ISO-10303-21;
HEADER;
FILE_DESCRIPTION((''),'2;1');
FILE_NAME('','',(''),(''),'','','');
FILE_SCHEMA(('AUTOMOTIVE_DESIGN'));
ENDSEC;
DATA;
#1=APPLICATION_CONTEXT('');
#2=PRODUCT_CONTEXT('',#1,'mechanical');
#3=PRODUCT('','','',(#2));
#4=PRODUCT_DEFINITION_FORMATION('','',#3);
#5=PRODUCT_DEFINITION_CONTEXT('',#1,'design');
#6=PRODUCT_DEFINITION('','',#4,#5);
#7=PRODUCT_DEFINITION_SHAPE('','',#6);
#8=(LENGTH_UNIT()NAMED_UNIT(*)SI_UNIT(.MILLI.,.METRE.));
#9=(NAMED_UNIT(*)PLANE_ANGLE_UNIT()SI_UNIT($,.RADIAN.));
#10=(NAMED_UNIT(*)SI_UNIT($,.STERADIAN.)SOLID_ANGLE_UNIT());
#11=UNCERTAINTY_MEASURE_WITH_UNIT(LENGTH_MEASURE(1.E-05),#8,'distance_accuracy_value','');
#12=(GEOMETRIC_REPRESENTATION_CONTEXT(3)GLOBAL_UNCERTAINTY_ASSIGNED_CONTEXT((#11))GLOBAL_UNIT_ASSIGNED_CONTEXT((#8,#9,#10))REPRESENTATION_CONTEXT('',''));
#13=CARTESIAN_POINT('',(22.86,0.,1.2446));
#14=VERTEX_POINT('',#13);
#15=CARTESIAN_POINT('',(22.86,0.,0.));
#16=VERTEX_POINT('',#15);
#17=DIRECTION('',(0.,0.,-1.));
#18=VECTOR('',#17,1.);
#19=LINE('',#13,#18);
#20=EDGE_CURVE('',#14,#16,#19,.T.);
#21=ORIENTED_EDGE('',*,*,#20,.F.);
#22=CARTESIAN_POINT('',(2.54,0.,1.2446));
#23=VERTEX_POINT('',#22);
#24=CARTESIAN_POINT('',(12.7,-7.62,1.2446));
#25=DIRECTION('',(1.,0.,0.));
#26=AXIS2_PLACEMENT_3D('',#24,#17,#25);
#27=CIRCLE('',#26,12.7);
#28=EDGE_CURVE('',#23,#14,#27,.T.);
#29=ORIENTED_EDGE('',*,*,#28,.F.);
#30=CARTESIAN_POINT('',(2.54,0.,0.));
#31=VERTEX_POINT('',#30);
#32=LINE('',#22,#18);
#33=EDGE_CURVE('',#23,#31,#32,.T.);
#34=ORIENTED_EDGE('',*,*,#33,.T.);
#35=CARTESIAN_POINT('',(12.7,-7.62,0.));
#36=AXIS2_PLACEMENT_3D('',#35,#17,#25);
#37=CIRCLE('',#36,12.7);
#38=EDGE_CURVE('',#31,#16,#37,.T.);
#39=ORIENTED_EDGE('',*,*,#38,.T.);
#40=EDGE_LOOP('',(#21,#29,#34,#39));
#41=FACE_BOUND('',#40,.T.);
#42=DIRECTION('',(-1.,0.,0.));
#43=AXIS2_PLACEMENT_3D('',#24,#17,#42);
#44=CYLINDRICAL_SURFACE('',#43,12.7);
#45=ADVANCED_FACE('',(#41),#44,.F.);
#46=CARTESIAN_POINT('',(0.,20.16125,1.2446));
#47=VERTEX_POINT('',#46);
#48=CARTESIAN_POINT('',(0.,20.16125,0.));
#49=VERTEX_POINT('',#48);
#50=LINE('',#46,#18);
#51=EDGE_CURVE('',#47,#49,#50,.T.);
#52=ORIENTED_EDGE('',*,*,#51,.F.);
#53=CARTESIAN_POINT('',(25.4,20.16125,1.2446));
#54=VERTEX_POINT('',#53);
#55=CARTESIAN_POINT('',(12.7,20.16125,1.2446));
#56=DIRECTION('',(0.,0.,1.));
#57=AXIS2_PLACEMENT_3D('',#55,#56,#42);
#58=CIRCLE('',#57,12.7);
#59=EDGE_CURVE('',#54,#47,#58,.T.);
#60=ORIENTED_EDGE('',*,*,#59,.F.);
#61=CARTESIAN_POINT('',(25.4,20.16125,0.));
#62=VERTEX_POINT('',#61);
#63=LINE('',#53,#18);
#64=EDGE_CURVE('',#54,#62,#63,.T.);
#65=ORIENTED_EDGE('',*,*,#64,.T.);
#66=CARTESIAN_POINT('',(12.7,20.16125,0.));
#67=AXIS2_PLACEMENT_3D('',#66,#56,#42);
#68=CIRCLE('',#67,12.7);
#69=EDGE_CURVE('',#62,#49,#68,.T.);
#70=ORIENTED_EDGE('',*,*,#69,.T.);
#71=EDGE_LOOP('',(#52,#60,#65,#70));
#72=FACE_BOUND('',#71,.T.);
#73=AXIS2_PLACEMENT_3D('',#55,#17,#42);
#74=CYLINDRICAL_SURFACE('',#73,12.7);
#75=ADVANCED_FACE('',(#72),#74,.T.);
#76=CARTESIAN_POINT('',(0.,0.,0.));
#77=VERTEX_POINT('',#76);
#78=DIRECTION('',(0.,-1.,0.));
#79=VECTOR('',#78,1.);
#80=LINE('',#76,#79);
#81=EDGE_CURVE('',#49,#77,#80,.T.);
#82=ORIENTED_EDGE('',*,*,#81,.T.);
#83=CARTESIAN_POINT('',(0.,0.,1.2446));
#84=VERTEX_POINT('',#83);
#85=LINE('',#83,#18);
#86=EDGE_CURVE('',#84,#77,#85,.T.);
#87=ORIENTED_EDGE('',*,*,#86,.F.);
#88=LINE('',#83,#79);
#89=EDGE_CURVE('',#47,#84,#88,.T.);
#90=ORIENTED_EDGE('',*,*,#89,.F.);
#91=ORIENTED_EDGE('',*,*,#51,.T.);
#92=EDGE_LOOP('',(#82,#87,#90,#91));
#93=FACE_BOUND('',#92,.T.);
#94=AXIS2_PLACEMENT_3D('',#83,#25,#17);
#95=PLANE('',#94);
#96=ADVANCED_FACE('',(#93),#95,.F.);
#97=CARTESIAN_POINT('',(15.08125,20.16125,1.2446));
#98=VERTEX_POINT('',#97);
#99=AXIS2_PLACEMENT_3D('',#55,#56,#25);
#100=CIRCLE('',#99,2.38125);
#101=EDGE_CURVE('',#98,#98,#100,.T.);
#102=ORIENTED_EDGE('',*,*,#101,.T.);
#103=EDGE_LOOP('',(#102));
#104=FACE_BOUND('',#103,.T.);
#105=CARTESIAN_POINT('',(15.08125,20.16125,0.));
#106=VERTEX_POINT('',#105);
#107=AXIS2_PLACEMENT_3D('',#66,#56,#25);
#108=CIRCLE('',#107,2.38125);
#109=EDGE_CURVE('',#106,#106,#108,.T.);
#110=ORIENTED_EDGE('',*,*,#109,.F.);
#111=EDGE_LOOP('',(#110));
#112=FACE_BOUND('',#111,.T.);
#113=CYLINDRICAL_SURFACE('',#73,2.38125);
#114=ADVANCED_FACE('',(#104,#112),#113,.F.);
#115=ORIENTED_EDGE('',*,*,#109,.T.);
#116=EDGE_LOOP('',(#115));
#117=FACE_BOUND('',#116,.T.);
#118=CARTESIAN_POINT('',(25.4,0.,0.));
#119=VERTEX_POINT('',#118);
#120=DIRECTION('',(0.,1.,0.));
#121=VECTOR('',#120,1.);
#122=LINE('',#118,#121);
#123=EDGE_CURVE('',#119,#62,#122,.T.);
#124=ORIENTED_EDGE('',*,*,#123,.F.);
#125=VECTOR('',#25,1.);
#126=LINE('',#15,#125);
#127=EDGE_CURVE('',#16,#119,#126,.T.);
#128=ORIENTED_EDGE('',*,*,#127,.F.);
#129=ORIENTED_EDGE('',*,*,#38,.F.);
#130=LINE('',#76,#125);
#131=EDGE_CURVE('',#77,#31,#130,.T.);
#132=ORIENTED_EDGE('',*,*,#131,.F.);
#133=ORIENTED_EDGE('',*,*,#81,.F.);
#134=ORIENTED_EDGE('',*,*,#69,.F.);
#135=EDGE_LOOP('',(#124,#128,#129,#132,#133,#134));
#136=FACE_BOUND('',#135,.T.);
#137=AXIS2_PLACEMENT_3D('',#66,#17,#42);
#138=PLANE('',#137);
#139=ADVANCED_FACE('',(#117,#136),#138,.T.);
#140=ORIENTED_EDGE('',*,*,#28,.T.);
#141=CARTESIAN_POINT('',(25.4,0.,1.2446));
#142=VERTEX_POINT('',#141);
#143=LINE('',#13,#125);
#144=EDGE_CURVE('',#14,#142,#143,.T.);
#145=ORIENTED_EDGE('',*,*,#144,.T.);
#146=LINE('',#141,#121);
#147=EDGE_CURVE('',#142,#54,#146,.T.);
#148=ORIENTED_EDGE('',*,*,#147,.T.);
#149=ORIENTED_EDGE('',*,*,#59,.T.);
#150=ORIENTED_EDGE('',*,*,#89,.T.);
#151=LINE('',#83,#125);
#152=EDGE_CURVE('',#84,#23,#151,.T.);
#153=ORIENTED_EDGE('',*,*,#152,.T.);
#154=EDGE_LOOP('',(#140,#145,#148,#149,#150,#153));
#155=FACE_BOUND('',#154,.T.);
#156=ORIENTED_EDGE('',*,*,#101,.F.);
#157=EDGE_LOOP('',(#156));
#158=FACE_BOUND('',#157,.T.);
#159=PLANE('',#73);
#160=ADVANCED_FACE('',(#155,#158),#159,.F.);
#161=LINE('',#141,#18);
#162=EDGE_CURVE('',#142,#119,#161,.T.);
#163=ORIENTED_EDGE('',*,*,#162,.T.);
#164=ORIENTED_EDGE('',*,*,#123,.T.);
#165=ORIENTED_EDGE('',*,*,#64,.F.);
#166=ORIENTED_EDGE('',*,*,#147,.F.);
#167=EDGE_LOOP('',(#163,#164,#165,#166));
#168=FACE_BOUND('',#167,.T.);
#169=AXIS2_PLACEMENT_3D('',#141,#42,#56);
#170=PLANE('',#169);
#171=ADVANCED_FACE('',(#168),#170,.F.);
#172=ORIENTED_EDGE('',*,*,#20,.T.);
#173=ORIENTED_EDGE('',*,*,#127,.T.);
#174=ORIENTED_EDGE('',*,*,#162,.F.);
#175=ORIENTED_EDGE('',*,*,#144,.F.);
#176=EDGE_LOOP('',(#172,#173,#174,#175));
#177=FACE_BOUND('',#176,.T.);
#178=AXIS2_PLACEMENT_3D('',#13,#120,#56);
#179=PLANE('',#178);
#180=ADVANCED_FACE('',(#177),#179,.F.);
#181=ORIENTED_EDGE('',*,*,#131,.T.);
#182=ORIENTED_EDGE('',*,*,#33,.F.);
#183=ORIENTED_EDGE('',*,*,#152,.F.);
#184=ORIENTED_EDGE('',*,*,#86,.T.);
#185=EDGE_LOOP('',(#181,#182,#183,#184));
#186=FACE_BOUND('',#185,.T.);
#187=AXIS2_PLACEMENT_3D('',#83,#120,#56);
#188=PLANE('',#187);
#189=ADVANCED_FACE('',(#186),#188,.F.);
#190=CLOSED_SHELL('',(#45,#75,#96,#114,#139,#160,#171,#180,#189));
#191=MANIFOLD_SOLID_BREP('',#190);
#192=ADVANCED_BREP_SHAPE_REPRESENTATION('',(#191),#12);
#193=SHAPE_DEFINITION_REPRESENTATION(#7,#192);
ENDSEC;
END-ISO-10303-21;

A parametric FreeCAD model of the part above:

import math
import FreeCAD as App
import Part
import Sketcher
Q = App.Units.Quantity

doc = App.newDocument("Part")
body = doc.addObject("PartDesign::Body", "Body")

sketch1 = body.newObject("Sketcher::SketchObject", "Sketch")
sketch1.AttachmentSupport = (doc.getObject("XY_Plane"), [""])
sketch1.MapMode = "FlatFace"
sketch1.addGeometry([
    Part.LineSegment(App.Vector(0, 0, 0), App.Vector(2.5, 0, 0)),
    Part.ArcOfCircle(Part.Circle(App.Vector(12.7, -7.6, 0), App.Vector(0, 0, 1), 12.7), math.radians(37), math.radians(143)),
    Part.LineSegment(App.Vector(22.9, 0, 0), App.Vector(25.4, 0, 0)),
    Part.LineSegment(App.Vector(25.4, 0, 0), App.Vector(25.4, 20.2, 0)),
    Part.ArcOfCircle(Part.Circle(App.Vector(12.7, 20.2, 0), App.Vector(0, 0, 1), 12.7), math.radians(0), math.radians(180)),
    Part.LineSegment(App.Vector(0, 20.2, 0), App.Vector(0, 0, 0)),
    Part.Circle(App.Vector(12.7, 20.2, 0), App.Vector(0, 0, 1), 2.4),
], False)
sketch1.addConstraint([
    Sketcher.Constraint("Coincident", 0, 2, 1, 2),
    Sketcher.Constraint("Coincident", 1, 1, 2, 1),
    Sketcher.Constraint("Coincident", 2, 2, 3, 1),
    Sketcher.Constraint("Tangent", 3, 2, 4, 1),
    Sketcher.Constraint("Tangent", 4, 2, 5, 1),
    Sketcher.Constraint("Coincident", 5, 2, 0, 1),
    Sketcher.Constraint("Horizontal", 0),
    Sketcher.Constraint("Horizontal", 2),
    Sketcher.Constraint("Vertical", 3),
    Sketcher.Constraint("Vertical", 5),
    Sketcher.Constraint("Coincident", 5, 2, -1, 1),
    Sketcher.Constraint("Coincident", 6, 3, 4, 3),
    Sketcher.Constraint("Equal", 1, 4),
    Sketcher.Constraint("PointOnObject", 1, 1, -1),
    Sketcher.Constraint("Vertical", 1, 3, 4, 3),
    Sketcher.Constraint("Radius", 1, Q("0.5 in")),
    Sketcher.Constraint("Diameter", 6, Q("0.1875 in")),
    Sketcher.Constraint("DistanceX", 0, 1, 0, 2, Q("0.1 in")),
    Sketcher.Constraint("DistanceY", 1, 3, 4, 3, Q("1.09375 in")),
])
pad1 = body.newObject("PartDesign::Pad", "Pad")
pad1.Profile = sketch1
pad1.Length = Q("0.049 in")

doc.recompute()
